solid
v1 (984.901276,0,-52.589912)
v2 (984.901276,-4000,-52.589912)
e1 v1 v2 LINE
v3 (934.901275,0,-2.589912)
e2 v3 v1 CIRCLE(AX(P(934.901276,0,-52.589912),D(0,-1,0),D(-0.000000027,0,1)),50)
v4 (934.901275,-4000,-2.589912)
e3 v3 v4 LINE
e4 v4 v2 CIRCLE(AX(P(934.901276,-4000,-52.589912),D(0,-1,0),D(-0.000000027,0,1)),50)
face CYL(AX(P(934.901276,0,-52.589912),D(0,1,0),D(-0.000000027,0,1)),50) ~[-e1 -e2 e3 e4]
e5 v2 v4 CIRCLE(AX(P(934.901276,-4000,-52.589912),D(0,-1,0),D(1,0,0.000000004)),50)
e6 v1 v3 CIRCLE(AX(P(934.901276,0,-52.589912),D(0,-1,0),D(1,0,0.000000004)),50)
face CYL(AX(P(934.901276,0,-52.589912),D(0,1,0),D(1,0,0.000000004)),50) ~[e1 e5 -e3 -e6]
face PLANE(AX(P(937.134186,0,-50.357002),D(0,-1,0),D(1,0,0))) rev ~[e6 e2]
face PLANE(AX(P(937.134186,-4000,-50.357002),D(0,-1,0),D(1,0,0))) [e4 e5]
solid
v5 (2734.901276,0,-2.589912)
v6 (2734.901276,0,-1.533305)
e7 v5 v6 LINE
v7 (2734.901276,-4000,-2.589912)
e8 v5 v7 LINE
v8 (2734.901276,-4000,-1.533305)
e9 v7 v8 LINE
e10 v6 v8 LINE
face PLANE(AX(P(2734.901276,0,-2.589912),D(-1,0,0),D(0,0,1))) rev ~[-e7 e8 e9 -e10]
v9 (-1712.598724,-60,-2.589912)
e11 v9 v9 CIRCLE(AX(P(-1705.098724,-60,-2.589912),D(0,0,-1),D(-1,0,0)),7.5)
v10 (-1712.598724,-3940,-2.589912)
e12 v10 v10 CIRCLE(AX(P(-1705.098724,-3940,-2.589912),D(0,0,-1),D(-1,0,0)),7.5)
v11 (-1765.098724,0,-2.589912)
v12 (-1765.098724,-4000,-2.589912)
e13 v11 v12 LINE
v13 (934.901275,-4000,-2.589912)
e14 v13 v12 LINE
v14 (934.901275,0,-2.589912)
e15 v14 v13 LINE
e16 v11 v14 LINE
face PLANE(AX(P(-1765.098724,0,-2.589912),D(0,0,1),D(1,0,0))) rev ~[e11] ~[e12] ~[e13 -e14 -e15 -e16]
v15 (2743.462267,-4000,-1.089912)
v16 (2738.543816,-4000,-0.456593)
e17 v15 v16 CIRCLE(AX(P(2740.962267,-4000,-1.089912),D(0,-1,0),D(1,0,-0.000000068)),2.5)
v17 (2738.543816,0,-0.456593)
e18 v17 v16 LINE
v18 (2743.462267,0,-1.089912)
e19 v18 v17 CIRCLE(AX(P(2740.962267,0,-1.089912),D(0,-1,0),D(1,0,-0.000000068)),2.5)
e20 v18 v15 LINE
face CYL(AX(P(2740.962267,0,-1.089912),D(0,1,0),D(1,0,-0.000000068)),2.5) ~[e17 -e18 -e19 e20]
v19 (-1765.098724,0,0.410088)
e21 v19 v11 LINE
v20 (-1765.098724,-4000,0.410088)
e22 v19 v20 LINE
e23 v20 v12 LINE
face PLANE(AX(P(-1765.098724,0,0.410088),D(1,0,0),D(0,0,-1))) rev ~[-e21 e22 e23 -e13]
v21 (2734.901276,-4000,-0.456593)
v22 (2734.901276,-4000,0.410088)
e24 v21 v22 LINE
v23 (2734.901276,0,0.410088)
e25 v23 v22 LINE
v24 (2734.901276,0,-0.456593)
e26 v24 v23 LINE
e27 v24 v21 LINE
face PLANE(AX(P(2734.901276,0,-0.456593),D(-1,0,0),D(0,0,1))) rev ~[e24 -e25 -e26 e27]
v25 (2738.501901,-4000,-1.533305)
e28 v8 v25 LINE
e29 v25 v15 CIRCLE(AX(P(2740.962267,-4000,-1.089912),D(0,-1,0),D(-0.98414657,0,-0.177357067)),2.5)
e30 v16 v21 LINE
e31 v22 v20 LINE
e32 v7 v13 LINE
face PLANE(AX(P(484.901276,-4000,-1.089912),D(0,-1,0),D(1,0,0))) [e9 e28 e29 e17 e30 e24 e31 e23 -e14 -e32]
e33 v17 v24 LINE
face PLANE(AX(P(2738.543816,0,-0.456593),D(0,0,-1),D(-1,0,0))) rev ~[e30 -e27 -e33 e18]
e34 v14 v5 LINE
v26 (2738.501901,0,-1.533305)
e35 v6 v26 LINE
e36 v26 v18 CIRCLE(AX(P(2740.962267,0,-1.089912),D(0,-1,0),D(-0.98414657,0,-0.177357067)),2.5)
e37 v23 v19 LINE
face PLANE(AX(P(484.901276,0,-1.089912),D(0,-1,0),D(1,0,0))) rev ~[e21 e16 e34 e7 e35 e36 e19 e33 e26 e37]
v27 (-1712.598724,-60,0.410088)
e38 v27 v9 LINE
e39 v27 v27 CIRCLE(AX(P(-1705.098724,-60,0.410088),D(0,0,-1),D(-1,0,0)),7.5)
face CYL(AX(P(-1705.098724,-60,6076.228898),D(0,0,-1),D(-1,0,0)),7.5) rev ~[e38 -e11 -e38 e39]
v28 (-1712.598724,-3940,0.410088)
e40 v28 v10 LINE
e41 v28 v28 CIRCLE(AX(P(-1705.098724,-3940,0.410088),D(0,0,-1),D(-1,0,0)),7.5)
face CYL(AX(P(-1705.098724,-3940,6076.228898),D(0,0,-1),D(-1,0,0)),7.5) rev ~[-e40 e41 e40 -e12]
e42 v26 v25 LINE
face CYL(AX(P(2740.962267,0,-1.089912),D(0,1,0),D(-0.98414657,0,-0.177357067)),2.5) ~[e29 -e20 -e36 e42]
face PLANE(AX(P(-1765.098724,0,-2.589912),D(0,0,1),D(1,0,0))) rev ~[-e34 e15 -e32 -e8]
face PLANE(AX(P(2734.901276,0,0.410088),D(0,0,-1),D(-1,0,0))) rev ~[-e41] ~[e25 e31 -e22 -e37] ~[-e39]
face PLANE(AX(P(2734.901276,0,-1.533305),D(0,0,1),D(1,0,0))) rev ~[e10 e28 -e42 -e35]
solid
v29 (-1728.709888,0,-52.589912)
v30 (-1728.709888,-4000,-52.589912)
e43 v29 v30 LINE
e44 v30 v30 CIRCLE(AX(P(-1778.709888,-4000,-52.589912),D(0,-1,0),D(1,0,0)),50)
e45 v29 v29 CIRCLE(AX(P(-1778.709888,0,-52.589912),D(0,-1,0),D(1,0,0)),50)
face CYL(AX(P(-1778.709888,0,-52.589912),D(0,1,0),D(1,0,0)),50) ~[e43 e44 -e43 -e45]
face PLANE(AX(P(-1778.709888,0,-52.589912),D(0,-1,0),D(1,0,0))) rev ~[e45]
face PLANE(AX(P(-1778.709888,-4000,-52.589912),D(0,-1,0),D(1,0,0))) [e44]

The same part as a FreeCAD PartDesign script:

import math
import FreeCAD as App
import Part
import Sketcher
from FreeCAD import Vector
Q = App.Units.Quantity

doc = App.newDocument("Part")
params = doc.addObject("Spreadsheet::Sheet", "Params")
for row, (alias, value) in enumerate([
    ("sketch1_diameter", "100 mm"),
    ("sketch1_radius", "2.5 mm"),
    ("sketch1_width", "2699.999999 mm"),
    ("sketch1_width2", "1800.000001 mm"),
    ("sketch1_height", "3 mm"),
    ("pad1_length", "4000 mm"),
    ("sketch2_diameter", "15 mm"),
    ("hole_diameter", "15 mm"),
    ("sketch3_diameter", "15 mm"),
    ("hole2_diameter", "15 mm"),
], start=1):
    params.set(f"A{row}", alias)
    params.set(f"B{row}", "=" + value)
    params.setAlias(f"B{row}", alias)

body = doc.addObject("PartDesign::Body", "Body")
body.AllowCompound = True

sketch1 = doc.addObject("Sketcher::SketchObject", "Sketch")
body.addObject(sketch1)
sketch1.AttachmentSupport = (doc.XZ_Plane, [""])
sketch1.MapMode = "FlatFace"
sketch1.addGeometry(Part.LineSegment(Vector(-1765.1, 0.4, 0), Vector(-1765.1, -2.6, 0)), False)
sketch1.addGeometry(Part.LineSegment(Vector(-1765.1, -2.6, 0), Vector(934.9, -2.6, 0)), False)
sketch1.addGeometry(Part.LineSegment(Vector(934.9, -2.6, 0), Vector(2734.9, -2.6, 0)), False)
sketch1.addGeometry(Part.LineSegment(Vector(2734.9, -2.6, 0), Vector(2734.9, -1.5, 0)), False)
sketch1.addGeometry(Part.LineSegment(Vector(2734.9, -1.5, 0), Vector(2738.5, -1.5, 0)), False)
sketch1.addGeometry(Part.ArcOfCircle(Part.Circle(Vector(2741, -1.1, 0), Vector(0, 0, 1), 2.5), math.radians(-170), math.radians(0)), False)
sketch1.addGeometry(Part.ArcOfCircle(Part.Circle(Vector(2741, -1.1, 0), Vector(0, 0, 1), 2.5), math.radians(0), math.radians(165)), False)
sketch1.addGeometry(Part.LineSegment(Vector(2738.5, -0.5, 0), Vector(2734.9, -0.5, 0)), False)
sketch1.addGeometry(Part.LineSegment(Vector(2734.9, -0.5, 0), Vector(2734.9, 0.4, 0)), False)
sketch1.addGeometry(Part.LineSegment(Vector(2734.9, 0.4, 0), Vector(-1765.1, 0.4, 0)), False)
sketch1.addGeometry(Part.ArcOfCircle(Part.Circle(Vector(934.9, -52.6, 0), Vector(0, 0, 1), 50), math.radians(0), math.radians(90)), False)
sketch1.addGeometry(Part.ArcOfCircle(Part.Circle(Vector(934.9, -52.6, 0), Vector(0, 0, 1), 50), math.radians(90), math.radians(360)), False)
sketch1.addGeometry(Part.Circle(Vector(-1778.7, -52.6, 0), Vector(0, 0, 1), 50), False)
sketch1.addConstraint(Sketcher.Constraint("Coincident", 0, 2, 1, 1))
sketch1.addConstraint(Sketcher.Constraint("Coincident", 1, 2, 2, 1))
sketch1.addConstraint(Sketcher.Constraint("Coincident", 2, 2, 3, 1))
sketch1.addConstraint(Sketcher.Constraint("Coincident", 3, 2, 4, 1))
sketch1.addConstraint(Sketcher.Constraint("Coincident", 4, 2, 5, 1))
sketch1.addConstraint(Sketcher.Constraint("Tangent", 5, 2, 6, 1))
sketch1.addConstraint(Sketcher.Constraint("Coincident", 6, 2, 7, 1))
sketch1.addConstraint(Sketcher.Constraint("Coincident", 7, 2, 8, 1))
sketch1.addConstraint(Sketcher.Constraint("Coincident", 8, 2, 9, 1))
sketch1.addConstraint(Sketcher.Constraint("Coincident", 9, 2, 0, 1))
sketch1.addConstraint(Sketcher.Constraint("Tangent", 10, 1, 11, 2))
sketch1.addConstraint(Sketcher.Constraint("Coincident", 11, 1, 10, 2))
sketch1.addConstraint(Sketcher.Constraint("Vertical", 0))
sketch1.addConstraint(Sketcher.Constraint("Horizontal", 1))
sketch1.addConstraint(Sketcher.Constraint("Horizontal", 2))
sketch1.addConstraint(Sketcher.Constraint("Vertical", 3))
sketch1.addConstraint(Sketcher.Constraint("Horizontal", 4))
sketch1.addConstraint(Sketcher.Constraint("Horizontal", 7))
sketch1.addConstraint(Sketcher.Constraint("Vertical", 8))
sketch1.addConstraint(Sketcher.Constraint("Horizontal", 9))
sketch1.addConstraint(Sketcher.Constraint("Coincident", 11, 1, 1, 2))
sketch1.addConstraint(Sketcher.Constraint("Equal", 5, 6))
sketch1.addConstraint(Sketcher.Constraint("Equal", 11, 12))
sketch1.addConstraint(Sketcher.Constraint("Horizontal", 11, 3, 12, 3))
sketch1.addConstraint(Sketcher.Constraint("Horizontal", 6, 3, 5, 2))
sketch1.addConstraint(Sketcher.Constraint("Horizontal", 12, 3, 10, 1))
sketch1.addConstraint(Sketcher.Constraint("Vertical", 11, 3, 1, 2))
sketch1.addConstraint(Sketcher.Constraint("Vertical", 3, 2, 7, 2))
sketch1.addConstraint(Sketcher.Constraint("Diameter", 12, Q("100 mm")))
sketch1.addConstraint(Sketcher.Constraint("Radius", 5, Q("2.5 mm")))
sketch1.addConstraint(Sketcher.Constraint("DistanceX", 1, 1, 1, 2, Q("2699.999999 mm")))
sketch1.addConstraint(Sketcher.Constraint("DistanceX", 2, 1, 2, 2, Q("1800.000001 mm")))
sketch1.addConstraint(Sketcher.Constraint("DistanceY", 0, 2, 0, 1, Q("3 mm")))
sketch1.addConstraint(Sketcher.Constraint("DistanceY", 10, 3, 5, 3, Q("51.5 mm")))
sketch1.addConstraint(Sketcher.Constraint("DistanceX", 7, 2, 7, 1, Q("3.64254 mm")))
sketch1.addConstraint(Sketcher.Constraint("DistanceY", 8, 1, 8, 2, Q("0.866681 mm")))
sketch1.addConstraint(Sketcher.Constraint("DistanceX", -1, 1, 4, 2, Q("2738.501901 mm")))
sketch1.addConstraint(Sketcher.Constraint("DistanceX", 4, 1, 4, 2, Q("3.600625 mm")))
sketch1.addConstraint(Sketcher.Constraint("DistanceY", 6, 3, -1, 1, Q("1.089912 mm")))
sketch1.addConstraint(Sketcher.Constraint("DistanceX", 12, 3, -1, 1, Q("1778.709888 mm")))
sketch1.setExpression("Constraints[28]", "Params.sketch1_diameter")
sketch1.setExpression("Constraints[29]", "Params.sketch1_radius")
sketch1.setExpression("Constraints[30]", "Params.sketch1_width")
sketch1.setExpression("Constraints[31]", "Params.sketch1_width2")
sketch1.setExpression("Constraints[32]", "Params.sketch1_height")
pad1 = doc.addObject("PartDesign::Pad", "Pad")
body.addObject(pad1)
pad1.Profile = sketch1
pad1.setExpression("Length", "Params.pad1_length")

sketch2 = doc.addObject("Sketcher::SketchObject", "Sketch001")
body.addObject(sketch2)
sketch2.AttachmentSupport = (doc.XY_Plane, [""])
sketch2.MapMode = "FlatFace"
sketch2.AttachmentOffset = App.Placement(Vector(0, 0, 0.410088), App.Rotation())
sketch2.addGeometry(Part.Circle(Vector(-1705, -60, 0), Vector(0, 0, 1), 8), False)
sketch2.addConstraint(Sketcher.Constraint("Diameter", 0, Q("15 mm")))
sketch2.addConstraint(Sketcher.Constraint("DistanceY", 0, 3, -1, 1, Q("60 mm")))
sketch2.addConstraint(Sketcher.Constraint("DistanceX", 0, 3, -1, 1, Q("1705.098724 mm")))
sketch2.setExpression("Constraints[0]", "Params.sketch2_diameter")
doc.recompute()
hole = doc.addObject("PartDesign::Hole", "Hole")
body.addObject(hole)
hole.Profile = sketch2
hole.ThreadType = "None"
hole.setExpression("Diameter", "Params.hole_diameter")
hole.DepthType = "ThroughAll"

sketch3 = doc.addObject("Sketcher::SketchObject", "Sketch002")
body.addObject(sketch3)
sketch3.AttachmentSupport = (doc.XY_Plane, [""])
sketch3.MapMode = "FlatFace"
sketch3.AttachmentOffset = App.Placement(Vector(0, 0, 0.410088), App.Rotation())
sketch3.addGeometry(Part.Circle(Vector(-1705, -3940, 0), Vector(0, 0, 1), 8), False)
sketch3.addConstraint(Sketcher.Constraint("Diameter", 0, Q("15 mm")))
sketch3.addConstraint(Sketcher.Constraint("DistanceY", 0, 3, -1, 1, Q("3940 mm")))
sketch3.addConstraint(Sketcher.Constraint("DistanceX", 0, 3, -1, 1, Q("1705.098724 mm")))
sketch3.setExpression("Constraints[0]", "Params.sketch3_diameter")
doc.recompute()
hole2 = doc.addObject("PartDesign::Hole", "Hole001")
body.addObject(hole2)
hole2.Profile = sketch3
hole2.ThreadType = "None"
hole2.setExpression("Diameter", "Params.hole2_diameter")
hole2.DepthType = "ThroughAll"

doc.recompute()
